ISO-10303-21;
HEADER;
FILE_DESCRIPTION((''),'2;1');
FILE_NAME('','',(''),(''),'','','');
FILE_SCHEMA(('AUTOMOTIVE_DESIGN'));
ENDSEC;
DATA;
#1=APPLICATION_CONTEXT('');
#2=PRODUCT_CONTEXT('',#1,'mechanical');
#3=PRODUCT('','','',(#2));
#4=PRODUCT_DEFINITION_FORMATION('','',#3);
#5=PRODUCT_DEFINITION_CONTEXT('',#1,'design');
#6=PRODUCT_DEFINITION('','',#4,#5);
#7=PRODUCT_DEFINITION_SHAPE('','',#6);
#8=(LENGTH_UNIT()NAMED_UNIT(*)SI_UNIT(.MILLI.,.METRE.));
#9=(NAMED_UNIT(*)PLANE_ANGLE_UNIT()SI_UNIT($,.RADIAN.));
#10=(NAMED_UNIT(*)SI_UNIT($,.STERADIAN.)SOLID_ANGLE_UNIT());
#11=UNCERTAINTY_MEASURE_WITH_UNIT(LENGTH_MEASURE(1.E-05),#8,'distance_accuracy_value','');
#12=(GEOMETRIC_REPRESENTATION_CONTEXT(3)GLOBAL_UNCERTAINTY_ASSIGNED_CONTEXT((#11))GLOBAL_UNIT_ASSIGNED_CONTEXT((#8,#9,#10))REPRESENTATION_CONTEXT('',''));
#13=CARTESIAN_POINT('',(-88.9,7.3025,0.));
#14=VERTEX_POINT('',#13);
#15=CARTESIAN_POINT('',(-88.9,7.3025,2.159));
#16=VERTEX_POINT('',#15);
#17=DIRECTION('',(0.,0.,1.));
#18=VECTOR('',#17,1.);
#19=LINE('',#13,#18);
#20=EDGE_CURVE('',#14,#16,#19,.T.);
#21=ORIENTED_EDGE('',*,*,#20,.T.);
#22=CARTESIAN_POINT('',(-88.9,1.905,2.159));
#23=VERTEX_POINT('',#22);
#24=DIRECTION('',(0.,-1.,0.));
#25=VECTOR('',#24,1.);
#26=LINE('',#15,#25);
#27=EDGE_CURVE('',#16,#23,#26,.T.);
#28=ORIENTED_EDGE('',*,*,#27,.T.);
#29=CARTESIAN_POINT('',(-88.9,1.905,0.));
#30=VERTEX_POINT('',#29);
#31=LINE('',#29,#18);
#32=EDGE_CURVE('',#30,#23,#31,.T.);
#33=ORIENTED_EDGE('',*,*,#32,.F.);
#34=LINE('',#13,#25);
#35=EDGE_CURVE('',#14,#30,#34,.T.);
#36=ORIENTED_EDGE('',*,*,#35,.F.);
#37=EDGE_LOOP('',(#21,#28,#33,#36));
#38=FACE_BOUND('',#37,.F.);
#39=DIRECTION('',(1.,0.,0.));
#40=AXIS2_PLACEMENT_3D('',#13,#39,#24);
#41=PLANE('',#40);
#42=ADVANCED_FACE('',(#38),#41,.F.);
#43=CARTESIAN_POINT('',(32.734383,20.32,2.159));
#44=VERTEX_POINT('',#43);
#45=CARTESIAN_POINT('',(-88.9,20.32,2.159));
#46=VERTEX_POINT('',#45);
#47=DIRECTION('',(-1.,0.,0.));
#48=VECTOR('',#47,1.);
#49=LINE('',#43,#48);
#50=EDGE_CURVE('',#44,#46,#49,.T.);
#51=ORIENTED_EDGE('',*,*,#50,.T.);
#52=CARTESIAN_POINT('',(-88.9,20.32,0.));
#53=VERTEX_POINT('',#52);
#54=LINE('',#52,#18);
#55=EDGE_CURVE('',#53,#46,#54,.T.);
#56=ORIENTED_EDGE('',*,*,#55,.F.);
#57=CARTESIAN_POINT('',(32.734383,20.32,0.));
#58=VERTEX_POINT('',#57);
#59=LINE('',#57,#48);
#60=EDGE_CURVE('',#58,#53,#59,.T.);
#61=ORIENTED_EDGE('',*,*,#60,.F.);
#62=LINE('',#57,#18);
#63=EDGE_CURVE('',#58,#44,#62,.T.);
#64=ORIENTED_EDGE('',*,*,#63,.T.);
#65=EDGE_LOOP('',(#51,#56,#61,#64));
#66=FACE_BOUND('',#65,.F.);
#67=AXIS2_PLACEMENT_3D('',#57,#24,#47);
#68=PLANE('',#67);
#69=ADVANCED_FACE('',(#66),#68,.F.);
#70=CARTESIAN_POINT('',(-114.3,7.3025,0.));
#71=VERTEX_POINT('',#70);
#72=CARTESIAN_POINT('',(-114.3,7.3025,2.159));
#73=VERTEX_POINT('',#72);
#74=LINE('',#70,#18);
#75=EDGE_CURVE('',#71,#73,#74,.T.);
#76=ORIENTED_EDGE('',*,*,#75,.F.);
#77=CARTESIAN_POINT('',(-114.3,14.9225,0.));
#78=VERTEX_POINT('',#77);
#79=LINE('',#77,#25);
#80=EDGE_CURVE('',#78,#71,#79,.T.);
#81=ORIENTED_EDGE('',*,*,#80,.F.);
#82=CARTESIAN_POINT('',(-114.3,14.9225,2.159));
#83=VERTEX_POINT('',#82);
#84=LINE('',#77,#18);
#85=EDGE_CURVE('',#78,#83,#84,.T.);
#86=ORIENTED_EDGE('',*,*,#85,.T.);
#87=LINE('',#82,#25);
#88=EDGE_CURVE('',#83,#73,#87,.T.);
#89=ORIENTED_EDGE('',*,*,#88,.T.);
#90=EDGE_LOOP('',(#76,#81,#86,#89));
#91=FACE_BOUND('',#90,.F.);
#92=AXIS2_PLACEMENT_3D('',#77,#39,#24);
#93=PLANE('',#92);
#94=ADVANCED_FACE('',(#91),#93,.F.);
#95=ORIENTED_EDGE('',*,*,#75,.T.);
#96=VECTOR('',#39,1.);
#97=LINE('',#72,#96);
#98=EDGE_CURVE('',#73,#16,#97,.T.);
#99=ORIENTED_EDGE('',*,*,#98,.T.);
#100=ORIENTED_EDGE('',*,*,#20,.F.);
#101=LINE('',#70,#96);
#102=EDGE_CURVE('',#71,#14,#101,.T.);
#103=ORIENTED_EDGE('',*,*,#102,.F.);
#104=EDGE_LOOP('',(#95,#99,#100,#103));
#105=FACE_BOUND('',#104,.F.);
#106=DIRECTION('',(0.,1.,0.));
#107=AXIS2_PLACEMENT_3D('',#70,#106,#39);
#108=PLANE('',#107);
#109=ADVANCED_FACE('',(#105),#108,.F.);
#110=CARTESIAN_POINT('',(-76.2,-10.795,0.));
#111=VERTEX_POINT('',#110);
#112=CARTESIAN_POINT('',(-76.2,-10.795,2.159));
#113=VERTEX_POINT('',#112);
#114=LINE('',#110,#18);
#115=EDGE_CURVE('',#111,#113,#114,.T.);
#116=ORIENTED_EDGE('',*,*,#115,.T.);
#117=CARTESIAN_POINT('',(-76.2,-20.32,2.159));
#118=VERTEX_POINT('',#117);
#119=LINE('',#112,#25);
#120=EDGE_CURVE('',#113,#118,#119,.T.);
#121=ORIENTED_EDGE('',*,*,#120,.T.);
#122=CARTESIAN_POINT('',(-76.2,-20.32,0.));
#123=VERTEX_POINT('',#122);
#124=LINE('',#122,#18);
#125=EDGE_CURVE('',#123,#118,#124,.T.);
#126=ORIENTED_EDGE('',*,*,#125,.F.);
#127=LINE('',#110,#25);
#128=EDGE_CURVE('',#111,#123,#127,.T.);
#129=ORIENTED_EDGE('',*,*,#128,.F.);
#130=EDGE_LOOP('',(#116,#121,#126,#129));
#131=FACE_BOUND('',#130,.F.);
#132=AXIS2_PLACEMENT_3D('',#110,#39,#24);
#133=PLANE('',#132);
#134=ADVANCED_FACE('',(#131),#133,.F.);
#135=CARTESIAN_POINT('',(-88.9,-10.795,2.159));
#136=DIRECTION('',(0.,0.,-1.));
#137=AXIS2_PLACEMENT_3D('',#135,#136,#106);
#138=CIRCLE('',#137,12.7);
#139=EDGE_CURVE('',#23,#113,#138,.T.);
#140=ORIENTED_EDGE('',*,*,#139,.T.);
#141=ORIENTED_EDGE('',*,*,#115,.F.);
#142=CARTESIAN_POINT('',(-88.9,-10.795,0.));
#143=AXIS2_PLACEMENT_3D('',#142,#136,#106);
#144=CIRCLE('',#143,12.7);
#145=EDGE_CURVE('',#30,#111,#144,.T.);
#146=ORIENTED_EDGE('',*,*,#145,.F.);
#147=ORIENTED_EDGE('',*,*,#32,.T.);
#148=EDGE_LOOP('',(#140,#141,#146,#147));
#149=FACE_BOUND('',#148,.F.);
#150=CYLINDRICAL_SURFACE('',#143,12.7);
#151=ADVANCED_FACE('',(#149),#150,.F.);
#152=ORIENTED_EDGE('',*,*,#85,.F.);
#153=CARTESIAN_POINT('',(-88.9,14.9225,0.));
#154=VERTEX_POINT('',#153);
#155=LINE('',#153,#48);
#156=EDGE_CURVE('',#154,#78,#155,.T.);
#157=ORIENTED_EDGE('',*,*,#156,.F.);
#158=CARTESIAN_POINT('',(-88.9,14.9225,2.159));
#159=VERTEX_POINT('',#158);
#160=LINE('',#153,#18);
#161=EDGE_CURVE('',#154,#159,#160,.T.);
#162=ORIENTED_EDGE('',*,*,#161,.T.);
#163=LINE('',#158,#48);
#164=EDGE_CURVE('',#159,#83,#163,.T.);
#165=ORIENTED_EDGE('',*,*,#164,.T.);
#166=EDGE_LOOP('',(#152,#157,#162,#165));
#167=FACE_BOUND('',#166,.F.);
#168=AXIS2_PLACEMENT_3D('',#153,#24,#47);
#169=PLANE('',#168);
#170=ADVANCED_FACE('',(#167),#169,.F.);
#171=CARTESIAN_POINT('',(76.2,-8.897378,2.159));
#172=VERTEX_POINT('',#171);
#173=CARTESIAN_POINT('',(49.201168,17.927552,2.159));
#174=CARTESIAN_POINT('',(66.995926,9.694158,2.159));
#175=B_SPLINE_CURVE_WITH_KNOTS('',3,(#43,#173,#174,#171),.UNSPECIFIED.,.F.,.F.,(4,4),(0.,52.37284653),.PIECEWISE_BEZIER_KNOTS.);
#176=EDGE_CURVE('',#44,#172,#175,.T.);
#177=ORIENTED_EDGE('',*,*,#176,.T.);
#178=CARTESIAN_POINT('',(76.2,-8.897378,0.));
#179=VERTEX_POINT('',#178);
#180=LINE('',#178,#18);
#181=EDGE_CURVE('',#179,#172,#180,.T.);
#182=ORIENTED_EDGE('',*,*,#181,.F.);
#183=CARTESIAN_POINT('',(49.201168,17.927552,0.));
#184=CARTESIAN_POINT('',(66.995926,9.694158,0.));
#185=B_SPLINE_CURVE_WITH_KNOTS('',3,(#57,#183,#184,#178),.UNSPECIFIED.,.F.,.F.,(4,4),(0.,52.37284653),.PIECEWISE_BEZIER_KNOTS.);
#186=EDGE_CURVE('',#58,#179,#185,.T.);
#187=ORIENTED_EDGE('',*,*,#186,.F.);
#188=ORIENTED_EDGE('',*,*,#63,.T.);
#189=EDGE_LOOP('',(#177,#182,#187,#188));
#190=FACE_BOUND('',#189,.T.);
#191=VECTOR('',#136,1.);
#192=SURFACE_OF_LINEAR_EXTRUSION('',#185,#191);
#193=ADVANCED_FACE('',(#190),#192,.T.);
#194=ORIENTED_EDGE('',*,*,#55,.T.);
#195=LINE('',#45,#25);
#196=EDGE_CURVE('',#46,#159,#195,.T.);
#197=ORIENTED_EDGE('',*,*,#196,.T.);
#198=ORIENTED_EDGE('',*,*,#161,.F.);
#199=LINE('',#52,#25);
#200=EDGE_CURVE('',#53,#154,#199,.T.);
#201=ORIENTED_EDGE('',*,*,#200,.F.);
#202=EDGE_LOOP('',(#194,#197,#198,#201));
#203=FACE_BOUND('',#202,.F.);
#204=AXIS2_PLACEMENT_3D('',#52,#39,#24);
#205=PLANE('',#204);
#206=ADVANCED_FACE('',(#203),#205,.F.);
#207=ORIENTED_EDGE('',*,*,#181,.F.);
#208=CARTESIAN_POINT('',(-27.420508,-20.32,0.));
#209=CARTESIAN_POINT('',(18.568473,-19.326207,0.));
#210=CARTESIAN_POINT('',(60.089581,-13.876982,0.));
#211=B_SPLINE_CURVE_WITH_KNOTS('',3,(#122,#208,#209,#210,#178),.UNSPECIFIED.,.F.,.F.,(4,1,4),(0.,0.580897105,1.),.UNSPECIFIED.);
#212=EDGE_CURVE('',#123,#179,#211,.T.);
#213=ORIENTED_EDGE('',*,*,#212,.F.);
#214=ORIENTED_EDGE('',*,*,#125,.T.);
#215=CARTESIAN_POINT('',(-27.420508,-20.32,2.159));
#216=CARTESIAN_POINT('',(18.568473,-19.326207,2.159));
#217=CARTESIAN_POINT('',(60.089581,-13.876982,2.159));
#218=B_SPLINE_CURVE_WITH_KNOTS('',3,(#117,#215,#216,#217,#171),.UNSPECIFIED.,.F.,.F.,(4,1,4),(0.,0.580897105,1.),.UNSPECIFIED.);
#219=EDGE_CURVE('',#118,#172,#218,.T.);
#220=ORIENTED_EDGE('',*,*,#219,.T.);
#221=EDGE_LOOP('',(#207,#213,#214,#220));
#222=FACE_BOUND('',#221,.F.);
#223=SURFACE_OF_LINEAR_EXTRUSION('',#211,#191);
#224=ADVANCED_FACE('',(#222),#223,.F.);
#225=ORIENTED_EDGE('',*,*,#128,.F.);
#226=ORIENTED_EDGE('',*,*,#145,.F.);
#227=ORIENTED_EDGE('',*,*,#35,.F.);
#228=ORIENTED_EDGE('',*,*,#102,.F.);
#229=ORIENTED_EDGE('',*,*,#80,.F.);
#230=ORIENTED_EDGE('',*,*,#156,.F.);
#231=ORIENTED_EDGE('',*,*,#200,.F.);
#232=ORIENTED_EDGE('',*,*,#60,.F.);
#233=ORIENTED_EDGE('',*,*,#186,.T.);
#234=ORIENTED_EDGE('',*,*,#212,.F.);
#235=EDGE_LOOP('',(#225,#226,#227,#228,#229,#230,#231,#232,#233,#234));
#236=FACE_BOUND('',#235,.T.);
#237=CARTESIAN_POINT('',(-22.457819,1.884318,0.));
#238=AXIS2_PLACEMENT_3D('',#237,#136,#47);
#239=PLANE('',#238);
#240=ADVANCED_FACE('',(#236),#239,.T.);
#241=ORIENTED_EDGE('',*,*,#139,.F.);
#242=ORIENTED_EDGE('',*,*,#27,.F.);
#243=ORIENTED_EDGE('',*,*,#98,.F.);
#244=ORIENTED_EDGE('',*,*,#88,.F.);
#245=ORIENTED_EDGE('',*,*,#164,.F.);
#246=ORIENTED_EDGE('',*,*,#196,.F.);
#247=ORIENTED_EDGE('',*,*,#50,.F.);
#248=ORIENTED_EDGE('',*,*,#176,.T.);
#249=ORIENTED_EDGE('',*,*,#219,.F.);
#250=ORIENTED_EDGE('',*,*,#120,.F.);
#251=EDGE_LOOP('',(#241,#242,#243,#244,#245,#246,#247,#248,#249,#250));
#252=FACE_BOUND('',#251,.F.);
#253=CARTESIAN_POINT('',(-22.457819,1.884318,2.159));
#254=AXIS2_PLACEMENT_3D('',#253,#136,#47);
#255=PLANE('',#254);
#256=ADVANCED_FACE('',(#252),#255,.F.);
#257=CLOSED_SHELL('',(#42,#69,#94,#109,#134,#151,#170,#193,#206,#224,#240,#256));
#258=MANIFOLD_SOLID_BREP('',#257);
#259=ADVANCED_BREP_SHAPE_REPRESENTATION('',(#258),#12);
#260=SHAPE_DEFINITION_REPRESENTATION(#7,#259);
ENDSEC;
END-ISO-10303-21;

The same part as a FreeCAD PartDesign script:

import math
import FreeCAD as App
import Part
import Sketcher

V = App.Vector
Q = App.Units.Quantity

doc = App.newDocument("Part")
body = doc.addObject("PartDesign::Body", "Body")

# Sketch on XY plane
sketch1 = doc.addObject("Sketcher::SketchObject", "Sketch")
body.addObject(sketch1)
sketch1.AttachmentSupport = (doc.XY_Plane, [""])
sketch1.MapMode = "FlatFace"
sketch1.addGeometry([
    Part.BSplineCurve([V(32.734383, 20.32, 0), V(49.201168, 17.927552, 0), V(66.995926, 9.694158, 0), V(76.2, -8.897378, 0)], [4, 4], [0, 52.37284653], False, 3, [1, 1, 1, 1], False),  # 0
    Part.LineSegment(V(32.734383, 20.32, 0), V(-88.9, 20.32, 0)),  # 1
    Part.LineSegment(V(-88.9, 20.32, 0), V(-88.9, 14.9225, 0)),  # 2
    Part.LineSegment(V(-88.9, 14.9225, 0), V(-114.3, 14.9225, 0)),  # 3
    Part.LineSegment(V(-114.3, 14.9225, 0), V(-114.3, 7.3025, 0)),  # 4
    Part.LineSegment(V(-114.3, 7.3025, 0), V(-88.9, 7.3025, 0)),  # 5
    Part.LineSegment(V(-88.9, 7.3025, 0), V(-88.9, 1.905, 0)),  # 6
    Part.ArcOfCircle(Part.Circle(V(-88.9, -10.795, 0), V(0, 0, 1), 12.7), math.radians(0), math.radians(90)),  # 7
    Part.LineSegment(V(-76.2, -10.795, 0), V(-76.2, -20.32, 0)),  # 8
    Part.BSplineCurve([V(-76.2, -20.32, 0), V(-27.420508, -20.32, 0), V(18.568473, -19.326207, 0), V(60.089581, -13.876982, 0), V(76.2, -8.897378, 0)], [4, 1, 4], [0, 0.580897105, 1], False, 3, [1, 1, 1, 1, 1], False),  # 9
], False)
sketch1.addConstraint([
    Sketcher.Constraint("Block", 0),
    Sketcher.Constraint("Block", 9),
    Sketcher.Constraint("Coincident", 0, 1, 1, 1),
    Sketcher.Constraint("Coincident", 1, 2, 2, 1),
    Sketcher.Constraint("Coincident", 2, 2, 3, 1),
    Sketcher.Constraint("Coincident", 3, 2, 4, 1),
    Sketcher.Constraint("Coincident", 4, 2, 5, 1),
    Sketcher.Constraint("Coincident", 5, 2, 6, 1),
    Sketcher.Constraint("Coincident", 6, 2, 7, 2),
    Sketcher.Constraint("Tangent", 7, 1, 8, 1),
    Sketcher.Constraint("Coincident", 8, 2, 9, 1),
    Sketcher.Constraint("Horizontal", 1),
    Sketcher.Constraint("Vertical", 2),
    Sketcher.Constraint("Horizontal", 3),
    Sketcher.Constraint("Vertical", 4),
    Sketcher.Constraint("Horizontal", 5),
    Sketcher.Constraint("Vertical", 6),
    Sketcher.Constraint("Vertical", 8),
    Sketcher.Constraint("Vertical", 7, 3, 1, 2),
    Sketcher.Constraint("Vertical", 2, 2, 5, 2),
    Sketcher.Constraint("Equal", 2, 6),
    Sketcher.Constraint("Radius", 7, Q("0.5 in")),
    Sketcher.Constraint("DistanceX", 3, 2, 3, 1, Q("1 in")),
    Sketcher.Constraint("DistanceY", 4, 2, 4, 1, Q("0.3 in")),
    Sketcher.Constraint("DistanceY", 8, 2, 8, 1, Q("0.375 in")),
])
pad1 = doc.addObject("PartDesign::Pad", "Pad")
body.addObject(pad1)
pad1.Profile = sketch1
pad1.Length = Q("0.085 in")

doc.recompute()
